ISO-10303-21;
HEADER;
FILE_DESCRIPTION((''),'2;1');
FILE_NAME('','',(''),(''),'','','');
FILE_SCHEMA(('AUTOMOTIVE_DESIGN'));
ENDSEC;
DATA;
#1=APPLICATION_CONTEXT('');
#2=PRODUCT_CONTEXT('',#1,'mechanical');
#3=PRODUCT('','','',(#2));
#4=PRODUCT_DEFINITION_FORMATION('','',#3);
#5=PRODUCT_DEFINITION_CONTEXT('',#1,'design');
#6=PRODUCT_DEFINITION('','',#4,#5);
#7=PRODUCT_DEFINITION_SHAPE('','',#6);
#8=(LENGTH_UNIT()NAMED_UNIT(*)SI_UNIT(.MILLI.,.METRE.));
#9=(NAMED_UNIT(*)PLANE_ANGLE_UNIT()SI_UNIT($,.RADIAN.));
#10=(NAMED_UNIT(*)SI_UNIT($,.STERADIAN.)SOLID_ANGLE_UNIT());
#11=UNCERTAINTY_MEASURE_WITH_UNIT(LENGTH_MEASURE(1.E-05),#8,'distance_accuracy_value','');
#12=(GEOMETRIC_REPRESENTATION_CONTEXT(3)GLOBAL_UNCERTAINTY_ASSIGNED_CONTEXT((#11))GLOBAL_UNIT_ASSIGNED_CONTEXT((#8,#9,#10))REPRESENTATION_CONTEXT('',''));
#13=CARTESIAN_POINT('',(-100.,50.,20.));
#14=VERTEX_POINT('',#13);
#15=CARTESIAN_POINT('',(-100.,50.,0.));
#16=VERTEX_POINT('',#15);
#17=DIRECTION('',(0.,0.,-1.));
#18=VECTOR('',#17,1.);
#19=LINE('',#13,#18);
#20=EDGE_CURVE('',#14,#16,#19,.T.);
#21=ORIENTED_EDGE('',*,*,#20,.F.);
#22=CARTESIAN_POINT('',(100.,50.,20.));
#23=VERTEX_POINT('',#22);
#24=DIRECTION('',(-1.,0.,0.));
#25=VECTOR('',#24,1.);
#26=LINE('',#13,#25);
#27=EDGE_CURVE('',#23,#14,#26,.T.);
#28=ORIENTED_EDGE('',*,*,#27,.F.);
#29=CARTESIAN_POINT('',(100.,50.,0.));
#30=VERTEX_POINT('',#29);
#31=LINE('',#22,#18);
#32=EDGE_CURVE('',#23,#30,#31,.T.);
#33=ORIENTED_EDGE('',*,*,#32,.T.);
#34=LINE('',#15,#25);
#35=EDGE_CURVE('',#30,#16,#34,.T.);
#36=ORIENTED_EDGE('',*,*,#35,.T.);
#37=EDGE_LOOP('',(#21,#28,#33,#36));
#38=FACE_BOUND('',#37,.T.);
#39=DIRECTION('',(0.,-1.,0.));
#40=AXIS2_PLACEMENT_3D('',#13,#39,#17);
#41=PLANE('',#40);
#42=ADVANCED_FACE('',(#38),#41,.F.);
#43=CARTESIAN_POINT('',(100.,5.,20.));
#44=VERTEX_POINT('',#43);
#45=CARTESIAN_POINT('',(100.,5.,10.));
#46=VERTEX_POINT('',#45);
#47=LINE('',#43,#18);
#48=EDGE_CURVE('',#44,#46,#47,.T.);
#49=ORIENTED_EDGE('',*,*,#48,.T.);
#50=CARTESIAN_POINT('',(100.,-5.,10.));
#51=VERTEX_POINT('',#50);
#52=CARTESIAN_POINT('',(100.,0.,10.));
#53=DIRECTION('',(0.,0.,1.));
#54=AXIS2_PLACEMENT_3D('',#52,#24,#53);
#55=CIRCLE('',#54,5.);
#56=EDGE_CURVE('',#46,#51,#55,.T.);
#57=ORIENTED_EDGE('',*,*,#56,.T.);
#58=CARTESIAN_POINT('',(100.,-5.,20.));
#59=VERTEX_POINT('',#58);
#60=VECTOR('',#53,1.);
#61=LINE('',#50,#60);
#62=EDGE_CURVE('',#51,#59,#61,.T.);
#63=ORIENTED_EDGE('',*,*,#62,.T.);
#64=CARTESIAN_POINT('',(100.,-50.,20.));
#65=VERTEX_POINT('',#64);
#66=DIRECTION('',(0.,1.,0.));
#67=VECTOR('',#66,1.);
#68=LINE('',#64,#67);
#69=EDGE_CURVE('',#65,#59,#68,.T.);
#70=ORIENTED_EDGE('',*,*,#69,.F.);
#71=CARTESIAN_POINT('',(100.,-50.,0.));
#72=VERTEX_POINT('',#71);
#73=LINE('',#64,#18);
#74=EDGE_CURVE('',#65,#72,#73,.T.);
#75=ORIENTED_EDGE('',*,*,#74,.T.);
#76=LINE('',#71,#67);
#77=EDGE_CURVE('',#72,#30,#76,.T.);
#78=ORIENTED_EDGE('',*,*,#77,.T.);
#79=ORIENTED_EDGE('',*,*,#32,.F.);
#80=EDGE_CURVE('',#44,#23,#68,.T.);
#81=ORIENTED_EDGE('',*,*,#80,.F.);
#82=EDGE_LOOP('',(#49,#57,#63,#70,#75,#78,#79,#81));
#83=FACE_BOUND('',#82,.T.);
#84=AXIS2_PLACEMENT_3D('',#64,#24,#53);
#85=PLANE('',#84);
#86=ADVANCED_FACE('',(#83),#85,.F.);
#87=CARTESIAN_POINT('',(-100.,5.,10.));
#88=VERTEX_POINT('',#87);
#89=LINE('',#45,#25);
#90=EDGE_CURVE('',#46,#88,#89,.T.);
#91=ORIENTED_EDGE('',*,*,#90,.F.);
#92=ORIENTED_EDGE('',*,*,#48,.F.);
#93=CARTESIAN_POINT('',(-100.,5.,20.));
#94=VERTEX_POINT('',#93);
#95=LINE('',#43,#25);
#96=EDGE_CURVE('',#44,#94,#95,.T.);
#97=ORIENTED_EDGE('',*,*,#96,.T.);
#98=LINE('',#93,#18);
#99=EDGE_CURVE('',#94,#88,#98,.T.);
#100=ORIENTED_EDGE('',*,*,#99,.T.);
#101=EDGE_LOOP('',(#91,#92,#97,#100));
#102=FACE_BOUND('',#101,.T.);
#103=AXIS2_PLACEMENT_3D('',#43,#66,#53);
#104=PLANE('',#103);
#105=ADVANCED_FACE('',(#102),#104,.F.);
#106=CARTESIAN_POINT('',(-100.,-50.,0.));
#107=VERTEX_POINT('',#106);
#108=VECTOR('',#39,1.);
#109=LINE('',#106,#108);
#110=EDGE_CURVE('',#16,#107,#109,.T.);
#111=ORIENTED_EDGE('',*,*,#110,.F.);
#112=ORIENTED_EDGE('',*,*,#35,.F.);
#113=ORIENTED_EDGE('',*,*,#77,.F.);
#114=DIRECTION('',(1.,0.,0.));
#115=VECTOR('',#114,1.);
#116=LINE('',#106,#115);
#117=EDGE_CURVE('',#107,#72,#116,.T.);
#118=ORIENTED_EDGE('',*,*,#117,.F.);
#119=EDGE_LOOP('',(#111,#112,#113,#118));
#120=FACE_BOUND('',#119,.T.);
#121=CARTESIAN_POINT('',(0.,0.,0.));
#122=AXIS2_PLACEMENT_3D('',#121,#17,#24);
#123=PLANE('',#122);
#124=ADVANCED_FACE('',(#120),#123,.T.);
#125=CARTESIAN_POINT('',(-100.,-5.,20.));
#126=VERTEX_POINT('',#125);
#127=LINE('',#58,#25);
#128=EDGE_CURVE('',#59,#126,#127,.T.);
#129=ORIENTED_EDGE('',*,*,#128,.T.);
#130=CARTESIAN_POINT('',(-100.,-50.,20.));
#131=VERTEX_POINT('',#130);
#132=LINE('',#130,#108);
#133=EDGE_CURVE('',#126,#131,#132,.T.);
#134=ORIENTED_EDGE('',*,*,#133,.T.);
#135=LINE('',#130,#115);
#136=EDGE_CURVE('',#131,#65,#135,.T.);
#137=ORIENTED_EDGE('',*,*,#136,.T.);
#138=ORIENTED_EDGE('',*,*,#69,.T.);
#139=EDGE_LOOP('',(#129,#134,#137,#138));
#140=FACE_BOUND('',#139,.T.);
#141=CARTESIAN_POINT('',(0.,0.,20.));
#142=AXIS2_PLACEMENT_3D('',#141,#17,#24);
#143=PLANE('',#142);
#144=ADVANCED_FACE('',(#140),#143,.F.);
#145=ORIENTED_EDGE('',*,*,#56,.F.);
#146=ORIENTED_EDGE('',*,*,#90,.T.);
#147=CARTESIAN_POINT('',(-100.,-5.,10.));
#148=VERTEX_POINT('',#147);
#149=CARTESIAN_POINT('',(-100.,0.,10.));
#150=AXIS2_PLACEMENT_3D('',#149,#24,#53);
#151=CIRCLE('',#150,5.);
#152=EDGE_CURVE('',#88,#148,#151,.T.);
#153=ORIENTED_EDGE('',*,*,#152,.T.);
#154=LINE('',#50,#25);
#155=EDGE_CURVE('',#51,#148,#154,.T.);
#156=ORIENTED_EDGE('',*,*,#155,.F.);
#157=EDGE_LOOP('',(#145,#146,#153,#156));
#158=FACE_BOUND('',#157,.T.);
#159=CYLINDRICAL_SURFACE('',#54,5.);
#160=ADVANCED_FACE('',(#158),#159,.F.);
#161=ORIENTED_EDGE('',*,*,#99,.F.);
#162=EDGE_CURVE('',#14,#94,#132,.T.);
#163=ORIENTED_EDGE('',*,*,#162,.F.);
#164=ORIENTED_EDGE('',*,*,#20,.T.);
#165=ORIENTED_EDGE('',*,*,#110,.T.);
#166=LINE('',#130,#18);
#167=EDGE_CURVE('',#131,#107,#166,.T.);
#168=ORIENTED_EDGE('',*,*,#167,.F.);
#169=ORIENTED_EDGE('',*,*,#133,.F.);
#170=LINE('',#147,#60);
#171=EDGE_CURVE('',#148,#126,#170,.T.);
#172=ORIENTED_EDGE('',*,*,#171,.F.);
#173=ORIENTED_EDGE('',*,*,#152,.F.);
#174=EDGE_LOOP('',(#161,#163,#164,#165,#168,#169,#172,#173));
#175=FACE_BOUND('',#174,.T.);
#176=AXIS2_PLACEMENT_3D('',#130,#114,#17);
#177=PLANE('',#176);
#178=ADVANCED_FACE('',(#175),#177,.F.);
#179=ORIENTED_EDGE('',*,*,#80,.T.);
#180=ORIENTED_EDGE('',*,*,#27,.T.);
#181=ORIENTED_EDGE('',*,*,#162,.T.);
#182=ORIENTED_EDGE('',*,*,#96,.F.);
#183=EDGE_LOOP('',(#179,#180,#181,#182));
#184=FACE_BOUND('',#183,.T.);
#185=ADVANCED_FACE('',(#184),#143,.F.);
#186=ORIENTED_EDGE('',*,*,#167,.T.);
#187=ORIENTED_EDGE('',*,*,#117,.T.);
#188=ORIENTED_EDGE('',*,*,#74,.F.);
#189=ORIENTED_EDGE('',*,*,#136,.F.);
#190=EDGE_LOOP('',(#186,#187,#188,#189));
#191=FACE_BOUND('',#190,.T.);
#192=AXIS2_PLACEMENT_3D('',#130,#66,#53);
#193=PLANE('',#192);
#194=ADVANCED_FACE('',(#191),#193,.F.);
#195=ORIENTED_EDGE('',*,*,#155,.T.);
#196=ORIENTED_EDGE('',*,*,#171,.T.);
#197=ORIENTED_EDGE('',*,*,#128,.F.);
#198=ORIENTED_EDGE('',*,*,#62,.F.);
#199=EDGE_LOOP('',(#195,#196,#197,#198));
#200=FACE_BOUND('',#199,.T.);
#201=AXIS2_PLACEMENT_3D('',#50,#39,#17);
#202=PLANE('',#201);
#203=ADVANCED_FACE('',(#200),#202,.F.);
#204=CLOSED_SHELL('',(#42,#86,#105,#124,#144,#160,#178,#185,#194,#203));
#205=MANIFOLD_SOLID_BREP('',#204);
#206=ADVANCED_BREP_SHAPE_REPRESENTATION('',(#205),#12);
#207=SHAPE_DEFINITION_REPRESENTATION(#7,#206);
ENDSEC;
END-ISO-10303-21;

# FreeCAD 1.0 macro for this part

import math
import FreeCAD as App
import Part
import Sketcher
Q = App.Units.Quantity


def add_polygon(sketch, points):
    """Adds a closed chain of lines whose ends are joined by coincident constraints."""
    first, n = sketch.GeometryCount, len(points)
    for a, b in zip(points, points[1:] + points[:1]):
        sketch.addGeometry(Part.LineSegment(App.Vector(*a, 0), App.Vector(*b, 0)), False)
    for i in range(n):
        sketch.addConstraint(Sketcher.Constraint("Coincident", first + i, 2, first + (i + 1) % n, 1))

doc = App.newDocument("Part")
params = doc.addObject("Spreadsheet::Sheet", "Params")
for row, (alias, value) in enumerate([
    ("sketch1_width", "200 mm"),
    ("sketch1_height", "100 mm"),
    ("pad1_length", "20 mm"),
    ("sketch2_radius", "5 mm"),
], start=1):
    params.set(f"A{row}", alias)
    params.set(f"B{row}", "=" + value)
    params.setAlias(f"B{row}", alias)

body = doc.addObject("PartDesign::Body", "Body")

# Sketch on XY plane
sketch1 = body.newObject("Sketcher::SketchObject", "Sketch")
sketch1.AttachmentSupport = (doc.getObject("XY_Plane"), [""])
sketch1.MapMode = "FlatFace"
add_polygon(sketch1, [(-100, 50), (-100, -50), (100, -50), (100, 50)])  # lines 0-3
sketch1.addConstraint([
    Sketcher.Constraint("Vertical", 0),
    Sketcher.Constraint("Horizontal", 1),
    Sketcher.Constraint("Vertical", 2),
    Sketcher.Constraint("Horizontal", 3),
    Sketcher.Constraint("Symmetric", 0, 2, 2, 2, -1, 1),
    Sketcher.Constraint("DistanceX", 1, 1, 1, 2, Q("200 mm")),
    Sketcher.Constraint("DistanceY", 0, 2, 0, 1, Q("100 mm")),
])
sketch1.setExpression("Constraints[9]", "Params.sketch1_width")
sketch1.setExpression("Constraints[10]", "Params.sketch1_height")
pad1 = body.newObject("PartDesign::Pad", "Pad")
pad1.Profile = sketch1
pad1.setExpression("Length", "Params.pad1_length")

# Sketch on YZ plane
sketch2 = body.newObject("Sketcher::SketchObject", "Sketch001")
sketch2.AttachmentSupport = (doc.getObject("YZ_Plane"), [""])
sketch2.MapMode = "FlatFace"
sketch2.AttachmentOffset = App.Placement(App.Vector(0, 0, -100), App.Rotation())
sketch2.addGeometry([
    Part.LineSegment(App.Vector(-5, 10, 0), App.Vector(-5, 20, 0)),
    Part.LineSegment(App.Vector(-5, 20, 0), App.Vector(5, 20, 0)),
    Part.LineSegment(App.Vector(5, 20, 0), App.Vector(5, 10, 0)),
    Part.ArcOfCircle(Part.Circle(App.Vector(0, 10, 0), App.Vector(0, 0, 1), 5), math.radians(180), math.radians(360)),
], False)
sketch2.addConstraint([
    Sketcher.Constraint("Coincident", 0, 2, 1, 1),
    Sketcher.Constraint("Coincident", 1, 2, 2, 1),
    Sketcher.Constraint("Tangent", 2, 2, 3, 2),
    Sketcher.Constraint("Tangent", 3, 1, 0, 1),
    Sketcher.Constraint("Vertical", 0),
    Sketcher.Constraint("Horizontal", 1),
    Sketcher.Constraint("Vertical", 2),
    Sketcher.Constraint("PointOnObject", 3, 3, -2),
    Sketcher.Constraint("Equal", 1, 0),
    Sketcher.Constraint("Radius", 3, Q("5 mm")),
    Sketcher.Constraint("DistanceY", -1, 1, 3, 3, Q("10 mm")),
])
sketch2.setExpression("Constraints[9]", "Params.sketch2_radius")
pocket1 = body.newObject("PartDesign::Pocket", "Pocket")
pocket1.Profile = sketch2
pocket1.Type = "ThroughAll"
pocket1.Reversed = True

doc.recompute()
